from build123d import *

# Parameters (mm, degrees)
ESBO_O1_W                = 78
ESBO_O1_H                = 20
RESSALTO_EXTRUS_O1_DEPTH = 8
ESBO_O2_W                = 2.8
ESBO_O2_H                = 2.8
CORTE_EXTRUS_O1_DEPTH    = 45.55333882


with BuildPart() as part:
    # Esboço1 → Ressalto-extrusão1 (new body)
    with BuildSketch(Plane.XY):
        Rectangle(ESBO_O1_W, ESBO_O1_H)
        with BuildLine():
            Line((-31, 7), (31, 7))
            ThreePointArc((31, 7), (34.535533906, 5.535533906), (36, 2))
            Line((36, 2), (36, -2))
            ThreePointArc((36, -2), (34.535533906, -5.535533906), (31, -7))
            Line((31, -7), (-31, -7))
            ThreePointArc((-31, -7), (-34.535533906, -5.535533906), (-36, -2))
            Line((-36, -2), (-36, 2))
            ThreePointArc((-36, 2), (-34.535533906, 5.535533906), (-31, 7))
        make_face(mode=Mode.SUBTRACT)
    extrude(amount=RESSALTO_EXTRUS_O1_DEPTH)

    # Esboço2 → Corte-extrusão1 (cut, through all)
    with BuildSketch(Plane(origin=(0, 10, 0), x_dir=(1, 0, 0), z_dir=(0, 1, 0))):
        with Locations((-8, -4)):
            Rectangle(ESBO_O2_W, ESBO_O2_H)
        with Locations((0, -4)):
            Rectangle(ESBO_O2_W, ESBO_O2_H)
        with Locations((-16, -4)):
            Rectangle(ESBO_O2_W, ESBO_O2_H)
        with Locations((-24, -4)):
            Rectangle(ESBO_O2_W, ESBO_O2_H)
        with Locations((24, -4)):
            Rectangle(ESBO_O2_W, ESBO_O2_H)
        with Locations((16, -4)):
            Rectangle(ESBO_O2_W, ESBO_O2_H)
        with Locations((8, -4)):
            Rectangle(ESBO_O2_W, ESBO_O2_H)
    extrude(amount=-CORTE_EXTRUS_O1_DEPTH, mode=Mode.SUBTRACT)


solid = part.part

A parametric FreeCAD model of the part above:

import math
import FreeCAD as App
import Part
import Sketcher
from FreeCAD import Vector

doc = App.newDocument("Part")
params = doc.addObject("Spreadsheet::Sheet", "Params")
for row, (alias, value) in enumerate([
    ("sketch1_radius", "5 mm"),
    ("sketch1_width", "78 mm"),
    ("sketch1_width2", "62 mm"),
    ("sketch1_height", "20 mm"),
    ("sketch1_height2", "4 mm"),
    ("pad1_length", "8 mm"),
    ("sketch2_width", "2.8 mm"),
], start=1):
    params.set(f"A{row}", alias)
    params.set(f"B{row}", "=" + value)
    params.setAlias(f"B{row}", alias)

body = doc.addObject("PartDesign::Body", "Body")

sketch1 = doc.addObject("Sketcher::SketchObject", "Sketch")
body.addObject(sketch1)
sketch1.AttachmentSupport = (doc.XY_Plane, [""])
sketch1.MapMode = "FlatFace"
sketch1.addGeometry(Part.LineSegment(Vector(-39, 10, 0), Vector(-39, -10, 0)), False)
sketch1.addGeometry(Part.LineSegment(Vector(-39, -10, 0), Vector(39, -10, 0)), False)
sketch1.addGeometry(Part.LineSegment(Vector(39, -10, 0), Vector(39, 10, 0)), False)
sketch1.addGeometry(Part.LineSegment(Vector(39, 10, 0), Vector(-39, 10, 0)), False)
sketch1.addGeometry(Part.ArcOfCircle(Part.Circle(Vector(-31, 2, 0), Vector(0, 0, 1), 5), math.radians(90), math.radians(180)), False)
sketch1.addGeometry(Part.LineSegment(Vector(-31, 7, 0), Vector(31, 7, 0)), False)
sketch1.addGeometry(Part.ArcOfCircle(Part.Circle(Vector(31, 2, 0), Vector(0, 0, 1), 5), math.radians(0), math.radians(90)), False)
sketch1.addGeometry(Part.LineSegment(Vector(36, 2, 0), Vector(36, -2, 0)), False)
sketch1.addGeometry(Part.ArcOfCircle(Part.Circle(Vector(31, -2, 0), Vector(0, 0, 1), 5), math.radians(-90), math.radians(0)), False)
sketch1.addGeometry(Part.LineSegment(Vector(31, -7, 0), Vector(-31, -7, 0)), False)
sketch1.addGeometry(Part.ArcOfCircle(Part.Circle(Vector(-31, -2, 0), Vector(0, 0, 1), 5), math.radians(180), math.radians(270)), False)
sketch1.addGeometry(Part.LineSegment(Vector(-36, -2, 0), Vector(-36, 2, 0)), False)
sketch1.addConstraint(Sketcher.Constraint("Coincident", 0, 2, 1, 1))
sketch1.addConstraint(Sketcher.Constraint("Coincident", 1, 2, 2, 1))
sketch1.addConstraint(Sketcher.Constraint("Coincident", 2, 2, 3, 1))
sketch1.addConstraint(Sketcher.Constraint("Coincident", 3, 2, 0, 1))
sketch1.addConstraint(Sketcher.Constraint("Tangent", 4, 1, 5, 1))
sketch1.addConstraint(Sketcher.Constraint("Tangent", 5, 2, 6, 2))
sketch1.addConstraint(Sketcher.Constraint("Tangent", 6, 1, 7, 1))
sketch1.addConstraint(Sketcher.Constraint("Tangent", 7, 2, 8, 2))
sketch1.addConstraint(Sketcher.Constraint("Tangent", 8, 1, 9, 1))
sketch1.addConstraint(Sketcher.Constraint("Tangent", 9, 2, 10, 2))
sketch1.addConstraint(Sketcher.Constraint("Tangent", 10, 1, 11, 1))
sketch1.addConstraint(Sketcher.Constraint("Tangent", 11, 2, 4, 2))
sketch1.addConstraint(Sketcher.Constraint("Vertical", 0))
sketch1.addConstraint(Sketcher.Constraint("Horizontal", 1))
sketch1.addConstraint(Sketcher.Constraint("Vertical", 2))
sketch1.addConstraint(Sketcher.Constraint("Horizontal", 3))
sketch1.addConstraint(Sketcher.Constraint("Horizontal", 5))
sketch1.addConstraint(Sketcher.Constraint("Vertical", 7))
sketch1.addConstraint(Sketcher.Constraint("Horizontal", 9))
sketch1.addConstraint(Sketcher.Constraint("Vertical", 11))
sketch1.addConstraint(Sketcher.Constraint("Equal", 4, 6))
sketch1.addConstraint(Sketcher.Constraint("Equal", 6, 8))
sketch1.addConstraint(Sketcher.Constraint("Equal", 8, 10))
sketch1.addConstraint(Sketcher.Constraint("Symmetric", 4, 3, 8, 3, -1, 1))
sketch1.addConstraint(Sketcher.Constraint("Symmetric", 0, 2, 2, 2, -1, 1))
sketch1.addConstraint(Sketcher.Constraint("Radius", 4, 5.0))
sketch1.addConstraint(Sketcher.Constraint("DistanceX", 1, 1, 1, 2, 78.0))
sketch1.addConstraint(Sketcher.Constraint("DistanceX", 5, 1, 5, 2, 62.0))
sketch1.addConstraint(Sketcher.Constraint("DistanceY", 0, 2, 0, 1, 20.0))
sketch1.addConstraint(Sketcher.Constraint("DistanceY", 7, 2, 7, 1, 4.0))
sketch1.setExpression("Constraints[25]", "Params.sketch1_radius")
sketch1.setExpression("Constraints[26]", "Params.sketch1_width")
sketch1.setExpression("Constraints[27]", "Params.sketch1_width2")
sketch1.setExpression("Constraints[28]", "Params.sketch1_height")
sketch1.setExpression("Constraints[29]", "Params.sketch1_height2")
pad1 = doc.addObject("PartDesign::Pad", "Pad")
body.addObject(pad1)
pad1.Profile = sketch1
pad1.setExpression("Length", "Params.pad1_length")

sketch2 = doc.addObject("Sketcher::SketchObject", "Sketch001")
body.addObject(sketch2)
sketch2.AttachmentSupport = (doc.XZ_Plane, [""])
sketch2.MapMode = "FlatFace"
sketch2.AttachmentOffset = App.Placement(Vector(0, 0, -10), App.Rotation())
sketch2.addGeometry(Part.LineSegment(Vector(-9.4, 2.6, 0), Vector(-9.4, 5.4, 0)), False)
sketch2.addGeometry(Part.LineSegment(Vector(-9.4, 5.4, 0), Vector(-6.6, 5.4, 0)), False)
sketch2.addGeometry(Part.LineSegment(Vector(-6.6, 5.4, 0), Vector(-6.6, 2.6, 0)), False)
sketch2.addGeometry(Part.LineSegment(Vector(-6.6, 2.6, 0), Vector(-9.4, 2.6, 0)), False)
sketch2.addGeometry(Part.LineSegment(Vector(-1.4, 2.6, 0), Vector(-1.4, 5.4, 0)), False)
sketch2.addGeometry(Part.LineSegment(Vector(-1.4, 5.4, 0), Vector(1.4, 5.4, 0)), False)
sketch2.addGeometry(Part.LineSegment(Vector(1.4, 5.4, 0), Vector(1.4, 2.6, 0)), False)
sketch2.addGeometry(Part.LineSegment(Vector(1.4, 2.6, 0), Vector(-1.4, 2.6, 0)), False)
sketch2.addGeometry(Part.LineSegment(Vector(-17.4, 2.6, 0), Vector(-17.4, 5.4, 0)), False)
sketch2.addGeometry(Part.LineSegment(Vector(-17.4, 5.4, 0), Vector(-14.6, 5.4, 0)), False)
sketch2.addGeometry(Part.LineSegment(Vector(-14.6, 5.4, 0), Vector(-14.6, 2.6, 0)), False)
sketch2.addGeometry(Part.LineSegment(Vector(-14.6, 2.6, 0), Vector(-17.4, 2.6, 0)), False)
sketch2.addGeometry(Part.LineSegment(Vector(-25.4, 2.6, 0), Vector(-25.4, 5.4, 0)), False)
sketch2.addGeometry(Part.LineSegment(Vector(-25.4, 5.4, 0), Vector(-22.6, 5.4, 0)), False)
sketch2.addGeometry(Part.LineSegment(Vector(-22.6, 5.4, 0), Vector(-22.6, 2.6, 0)), False)
sketch2.addGeometry(Part.LineSegment(Vector(-22.6, 2.6, 0), Vector(-25.4, 2.6, 0)), False)
sketch2.addGeometry(Part.LineSegment(Vector(22.6, 2.6, 0), Vector(22.6, 5.4, 0)), False)
sketch2.addGeometry(Part.LineSegment(Vector(22.6, 5.4, 0), Vector(25.4, 5.4, 0)), False)
sketch2.addGeometry(Part.LineSegment(Vector(25.4, 5.4, 0), Vector(25.4, 2.6, 0)), False)
sketch2.addGeometry(Part.LineSegment(Vector(25.4, 2.6, 0), Vector(22.6, 2.6, 0)), False)
sketch2.addGeometry(Part.LineSegment(Vector(14.6, 2.6, 0), Vector(14.6, 5.4, 0)), False)
sketch2.addGeometry(Part.LineSegment(Vector(14.6, 5.4, 0), Vector(17.4, 5.4, 0)), False)
sketch2.addGeometry(Part.LineSegment(Vector(17.4, 5.4, 0), Vector(17.4, 2.6, 0)), False)
sketch2.addGeometry(Part.LineSegment(Vector(17.4, 2.6, 0), Vector(14.6, 2.6, 0)), False)
sketch2.addGeometry(Part.LineSegment(Vector(6.6, 2.6, 0), Vector(6.6, 5.4, 0)), False)
sketch2.addGeometry(Part.LineSegment(Vector(6.6, 5.4, 0), Vector(9.4, 5.4, 0)), False)
sketch2.addGeometry(Part.LineSegment(Vector(9.4, 5.4, 0), Vector(9.4, 2.6, 0)), False)
sketch2.addGeometry(Part.LineSegment(Vector(9.4, 2.6, 0), Vector(6.6, 2.6, 0)), False)
sketch2.addConstraint(Sketcher.Constraint("Coincident", 0, 2, 1, 1))
sketch2.addConstraint(Sketcher.Constraint("Coincident", 1, 2, 2, 1))
sketch2.addConstraint(Sketcher.Constraint("Coincident", 2, 2, 3, 1))
sketch2.addConstraint(Sketcher.Constraint("Coincident", 3, 2, 0, 1))
sketch2.addConstraint(Sketcher.Constraint("Coincident", 4, 2, 5, 1))
sketch2.addConstraint(Sketcher.Constraint("Coincident", 5, 2, 6, 1))
sketch2.addConstraint(Sketcher.Constraint("Coincident", 6, 2, 7, 1))
sketch2.addConstraint(Sketcher.Constraint("Coincident", 7, 2, 4, 1))
sketch2.addConstraint(Sketcher.Constraint("Coincident", 8, 2, 9, 1))
sketch2.addConstraint(Sketcher.Constraint("Coincident", 9, 2, 10, 1))
sketch2.addConstraint(Sketcher.Constraint("Coincident", 10, 2, 11, 1))
sketch2.addConstraint(Sketcher.Constraint("Coincident", 11, 2, 8, 1))
sketch2.addConstraint(Sketcher.Constraint("Coincident", 12, 2, 13, 1))
sketch2.addConstraint(Sketcher.Constraint("Coincident", 13, 2, 14, 1))
sketch2.addConstraint(Sketcher.Constraint("Coincident", 14, 2, 15, 1))
sketch2.addConstraint(Sketcher.Constraint("Coincident", 15, 2, 12, 1))
sketch2.addConstraint(Sketcher.Constraint("Coincident", 16, 2, 17, 1))
sketch2.addConstraint(Sketcher.Constraint("Coincident", 17, 2, 18, 1))
sketch2.addConstraint(Sketcher.Constraint("Coincident", 18, 2, 19, 1))
sketch2.addConstraint(Sketcher.Constraint("Coincident", 19, 2, 16, 1))
sketch2.addConstraint(Sketcher.Constraint("Coincident", 20, 2, 21, 1))
sketch2.addConstraint(Sketcher.Constraint("Coincident", 21, 2, 22, 1))
sketch2.addConstraint(Sketcher.Constraint("Coincident", 22, 2, 23, 1))
sketch2.addConstraint(Sketcher.Constraint("Coincident", 23, 2, 20, 1))
sketch2.addConstraint(Sketcher.Constraint("Coincident", 24, 2, 25, 1))
sketch2.addConstraint(Sketcher.Constraint("Coincident", 25, 2, 26, 1))
sketch2.addConstraint(Sketcher.Constraint("Coincident", 26, 2, 27, 1))
sketch2.addConstraint(Sketcher.Constraint("Coincident", 27, 2, 24, 1))
sketch2.addConstraint(Sketcher.Constraint("Vertical", 0))
sketch2.addConstraint(Sketcher.Constraint("Horizontal", 1))
sketch2.addConstraint(Sketcher.Constraint("Vertical", 2))
sketch2.addConstraint(Sketcher.Constraint("Horizontal", 3))
sketch2.addConstraint(Sketcher.Constraint("Vertical", 4))
sketch2.addConstraint(Sketcher.Constraint("Horizontal", 5))
sketch2.addConstraint(Sketcher.Constraint("Vertical", 6))
sketch2.addConstraint(Sketcher.Constraint("Horizontal", 7))
sketch2.addConstraint(Sketcher.Constraint("Vertical", 8))
sketch2.addConstraint(Sketcher.Constraint("Horizontal", 9))
sketch2.addConstraint(Sketcher.Constraint("Vertical", 10))
sketch2.addConstraint(Sketcher.Constraint("Horizontal", 11))
sketch2.addConstraint(Sketcher.Constraint("Vertical", 12))
sketch2.addConstraint(Sketcher.Constraint("Horizontal", 13))
sketch2.addConstraint(Sketcher.Constraint("Vertical", 14))
sketch2.addConstraint(Sketcher.Constraint("Horizontal", 15))
sketch2.addConstraint(Sketcher.Constraint("Vertical", 16))
sketch2.addConstraint(Sketcher.Constraint("Horizontal", 17))
sketch2.addConstraint(Sketcher.Constraint("Vertical", 18))
sketch2.addConstraint(Sketcher.Constraint("Horizontal", 19))
sketch2.addConstraint(Sketcher.Constraint("Vertical", 20))
sketch2.addConstraint(Sketcher.Constraint("Horizontal", 21))
sketch2.addConstraint(Sketcher.Constraint("Vertical", 22))
sketch2.addConstraint(Sketcher.Constraint("Horizontal", 23))
sketch2.addConstraint(Sketcher.Constraint("Vertical", 24))
sketch2.addConstraint(Sketcher.Constraint("Horizontal", 25))
sketch2.addConstraint(Sketcher.Constraint("Vertical", 26))
sketch2.addConstraint(Sketcher.Constraint("Horizontal", 27))
sketch2.addConstraint(Sketcher.Constraint("Symmetric", 13, 2, 16, 2, -2))
sketch2.addConstraint(Sketcher.Constraint("Symmetric", 15, 2, 18, 2, -2))
sketch2.addConstraint(Sketcher.Constraint("Symmetric", 9, 2, 20, 2, -2))
sketch2.addConstraint(Sketcher.Constraint("Symmetric", 11, 2, 22, 2, -2))
sketch2.addConstraint(Sketcher.Constraint("Symmetric", 1, 2, 24, 2, -2))
sketch2.addConstraint(Sketcher.Constraint("Symmetric", 3, 2, 26, 2, -2))
sketch2.addConstraint(Sketcher.Constraint("Horizontal", 1, 2, 4, 2))
sketch2.addConstraint(Sketcher.Constraint("Horizontal", 3, 2, 6, 2))
sketch2.addConstraint(Sketcher.Constraint("Horizontal", 5, 2, 8, 2))
sketch2.addConstraint(Sketcher.Constraint("Horizontal", 7, 2, 10, 2))
sketch2.addConstraint(Sketcher.Constraint("Horizontal", 9, 2, 12, 2))
sketch2.addConstraint(Sketcher.Constraint("Horizontal", 11, 2, 14, 2))
sketch2.addConstraint(Sketcher.Constraint("Equal", 3, 5))
sketch2.addConstraint(Sketcher.Constraint("Equal", 7, 9))
sketch2.addConstraint(Sketcher.Constraint("Equal", 11, 13))
sketch2.addConstraint(Sketcher.Constraint("Equal", 27, 0))
sketch2.addConstraint(Sketcher.Constraint("DistanceX", 1, 1, 1, 2, 2.8))
sketch2.addConstraint(Sketcher.Constraint("DistanceX", 0, 2, 4, 2, 8.0))
sketch2.addConstraint(Sketcher.Constraint("DistanceX", 8, 2, 0, 2, 8.0))
sketch2.addConstraint(Sketcher.Constraint("DistanceX", 12, 2, 8, 2, 8.0))
sketch2.addConstraint(Sketcher.Constraint("DistanceX", 4, 2, 16, 2, 24.0))
sketch2.addConstraint(Sketcher.Constraint("DistanceY", -1, 1, 0, 2, 5.4))
sketch2.setExpression("Constraints[72]", "Params.sketch2_width")
pocket1 = doc.addObject("PartDesign::Pocket", "Pocket")
body.addObject(pocket1)
pocket1.Profile = sketch2
pocket1.Type = "ThroughAll"
pocket1.Reversed = True

doc.recompute()
